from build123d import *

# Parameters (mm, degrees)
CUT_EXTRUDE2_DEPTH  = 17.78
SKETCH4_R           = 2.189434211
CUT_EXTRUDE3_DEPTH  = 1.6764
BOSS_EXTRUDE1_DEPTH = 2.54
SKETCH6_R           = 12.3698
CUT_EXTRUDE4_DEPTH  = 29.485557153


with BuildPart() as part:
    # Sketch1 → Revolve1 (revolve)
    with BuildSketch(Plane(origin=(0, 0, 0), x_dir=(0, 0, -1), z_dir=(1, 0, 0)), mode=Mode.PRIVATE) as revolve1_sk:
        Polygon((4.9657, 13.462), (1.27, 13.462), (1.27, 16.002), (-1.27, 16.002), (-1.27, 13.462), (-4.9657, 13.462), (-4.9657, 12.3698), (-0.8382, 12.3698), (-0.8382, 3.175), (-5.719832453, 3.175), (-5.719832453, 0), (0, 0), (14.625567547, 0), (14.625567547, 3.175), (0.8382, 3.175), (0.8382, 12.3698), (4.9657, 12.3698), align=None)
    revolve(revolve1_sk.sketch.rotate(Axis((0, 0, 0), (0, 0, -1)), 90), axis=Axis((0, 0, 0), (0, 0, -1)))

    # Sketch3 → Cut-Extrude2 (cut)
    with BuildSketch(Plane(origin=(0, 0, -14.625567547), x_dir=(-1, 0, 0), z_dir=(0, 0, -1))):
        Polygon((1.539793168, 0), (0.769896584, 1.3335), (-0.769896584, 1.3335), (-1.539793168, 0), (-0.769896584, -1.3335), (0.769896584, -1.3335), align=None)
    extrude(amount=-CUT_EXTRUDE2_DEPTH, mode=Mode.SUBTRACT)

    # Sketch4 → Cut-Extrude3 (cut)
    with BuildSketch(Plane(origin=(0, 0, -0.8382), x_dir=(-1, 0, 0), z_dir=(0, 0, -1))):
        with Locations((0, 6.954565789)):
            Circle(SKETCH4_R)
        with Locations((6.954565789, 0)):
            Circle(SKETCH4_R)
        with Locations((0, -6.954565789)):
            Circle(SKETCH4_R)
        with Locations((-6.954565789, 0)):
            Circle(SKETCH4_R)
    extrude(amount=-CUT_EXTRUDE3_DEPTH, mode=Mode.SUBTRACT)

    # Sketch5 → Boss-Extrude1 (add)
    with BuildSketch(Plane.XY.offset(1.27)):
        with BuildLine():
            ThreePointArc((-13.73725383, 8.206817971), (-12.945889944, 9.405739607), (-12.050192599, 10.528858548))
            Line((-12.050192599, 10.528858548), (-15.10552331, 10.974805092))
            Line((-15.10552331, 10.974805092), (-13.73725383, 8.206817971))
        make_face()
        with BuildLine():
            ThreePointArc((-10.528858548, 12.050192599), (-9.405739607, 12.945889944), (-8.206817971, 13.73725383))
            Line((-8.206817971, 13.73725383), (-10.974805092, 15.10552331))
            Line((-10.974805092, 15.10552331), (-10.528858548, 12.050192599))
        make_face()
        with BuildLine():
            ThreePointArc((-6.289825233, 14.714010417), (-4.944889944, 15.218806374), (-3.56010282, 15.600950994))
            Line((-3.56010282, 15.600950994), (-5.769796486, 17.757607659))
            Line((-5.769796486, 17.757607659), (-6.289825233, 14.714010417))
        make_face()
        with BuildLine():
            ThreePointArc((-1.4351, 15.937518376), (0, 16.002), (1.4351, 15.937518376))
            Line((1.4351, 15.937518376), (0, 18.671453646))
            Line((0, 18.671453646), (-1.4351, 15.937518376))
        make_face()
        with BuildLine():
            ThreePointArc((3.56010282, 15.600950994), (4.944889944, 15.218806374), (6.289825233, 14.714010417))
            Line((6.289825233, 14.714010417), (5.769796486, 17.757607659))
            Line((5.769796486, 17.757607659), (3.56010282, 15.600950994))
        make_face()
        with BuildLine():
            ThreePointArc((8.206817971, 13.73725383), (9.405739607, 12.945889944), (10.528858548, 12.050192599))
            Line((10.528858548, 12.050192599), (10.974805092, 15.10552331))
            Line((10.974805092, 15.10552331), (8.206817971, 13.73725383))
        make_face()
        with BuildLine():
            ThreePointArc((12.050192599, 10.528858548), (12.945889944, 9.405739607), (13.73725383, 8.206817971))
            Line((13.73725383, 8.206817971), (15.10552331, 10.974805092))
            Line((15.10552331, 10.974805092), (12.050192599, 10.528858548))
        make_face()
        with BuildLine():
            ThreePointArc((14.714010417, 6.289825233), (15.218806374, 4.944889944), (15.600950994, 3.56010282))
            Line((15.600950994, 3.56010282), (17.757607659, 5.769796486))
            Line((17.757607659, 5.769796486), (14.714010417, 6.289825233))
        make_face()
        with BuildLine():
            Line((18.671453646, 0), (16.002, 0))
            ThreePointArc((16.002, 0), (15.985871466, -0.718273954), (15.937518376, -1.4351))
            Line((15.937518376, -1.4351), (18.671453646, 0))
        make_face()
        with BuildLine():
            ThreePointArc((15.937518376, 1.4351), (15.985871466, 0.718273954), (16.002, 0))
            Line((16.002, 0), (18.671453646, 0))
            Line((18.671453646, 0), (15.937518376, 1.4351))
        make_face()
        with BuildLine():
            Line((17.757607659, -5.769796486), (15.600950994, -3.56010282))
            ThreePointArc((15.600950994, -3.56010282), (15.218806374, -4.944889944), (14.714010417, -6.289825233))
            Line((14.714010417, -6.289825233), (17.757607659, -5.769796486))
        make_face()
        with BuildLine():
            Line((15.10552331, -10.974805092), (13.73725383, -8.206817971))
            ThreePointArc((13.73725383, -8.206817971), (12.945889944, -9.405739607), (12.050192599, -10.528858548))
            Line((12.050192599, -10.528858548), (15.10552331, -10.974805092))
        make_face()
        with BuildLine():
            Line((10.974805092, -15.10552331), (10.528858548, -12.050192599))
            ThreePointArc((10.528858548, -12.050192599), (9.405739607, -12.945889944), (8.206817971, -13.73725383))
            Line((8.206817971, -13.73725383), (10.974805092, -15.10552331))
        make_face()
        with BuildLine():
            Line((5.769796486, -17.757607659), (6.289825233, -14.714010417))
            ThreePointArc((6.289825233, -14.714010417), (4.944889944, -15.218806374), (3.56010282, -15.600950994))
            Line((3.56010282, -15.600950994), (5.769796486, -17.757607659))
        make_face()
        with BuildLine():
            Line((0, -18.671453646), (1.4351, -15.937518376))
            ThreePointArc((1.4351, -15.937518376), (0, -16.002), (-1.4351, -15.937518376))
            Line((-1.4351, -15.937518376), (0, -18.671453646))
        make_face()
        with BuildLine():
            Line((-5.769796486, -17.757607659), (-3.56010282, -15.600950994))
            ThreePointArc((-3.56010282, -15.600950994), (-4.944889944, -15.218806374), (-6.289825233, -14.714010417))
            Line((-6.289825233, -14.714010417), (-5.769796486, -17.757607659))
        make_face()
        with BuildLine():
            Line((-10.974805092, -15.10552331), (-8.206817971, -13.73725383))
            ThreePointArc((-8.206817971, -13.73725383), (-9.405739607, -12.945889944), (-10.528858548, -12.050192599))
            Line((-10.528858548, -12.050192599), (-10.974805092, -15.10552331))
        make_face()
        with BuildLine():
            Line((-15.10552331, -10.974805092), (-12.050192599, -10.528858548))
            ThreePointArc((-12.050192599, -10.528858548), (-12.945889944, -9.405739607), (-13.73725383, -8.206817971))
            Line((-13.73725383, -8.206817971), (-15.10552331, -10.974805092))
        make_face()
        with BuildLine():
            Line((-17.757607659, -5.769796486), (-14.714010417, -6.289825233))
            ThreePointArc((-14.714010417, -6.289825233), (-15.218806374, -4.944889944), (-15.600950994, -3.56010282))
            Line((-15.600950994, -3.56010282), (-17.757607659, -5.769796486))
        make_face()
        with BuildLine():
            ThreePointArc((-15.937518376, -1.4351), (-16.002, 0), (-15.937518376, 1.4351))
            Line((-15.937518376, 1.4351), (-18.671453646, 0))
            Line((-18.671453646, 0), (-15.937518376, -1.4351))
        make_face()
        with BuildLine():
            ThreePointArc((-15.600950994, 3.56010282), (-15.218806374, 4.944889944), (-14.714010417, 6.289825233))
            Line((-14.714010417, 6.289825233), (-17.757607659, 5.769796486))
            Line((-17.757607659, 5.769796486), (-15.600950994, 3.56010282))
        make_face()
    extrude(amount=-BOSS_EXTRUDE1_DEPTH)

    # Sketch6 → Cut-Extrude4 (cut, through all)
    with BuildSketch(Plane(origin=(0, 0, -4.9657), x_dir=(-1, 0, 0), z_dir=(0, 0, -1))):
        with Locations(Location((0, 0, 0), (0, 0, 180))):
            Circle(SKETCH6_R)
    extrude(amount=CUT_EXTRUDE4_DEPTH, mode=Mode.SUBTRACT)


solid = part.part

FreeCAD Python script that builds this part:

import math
import FreeCAD as App
import Part
import Sketcher

V = App.Vector
Q = App.Units.Quantity


def add_polygon(sketch, points):
    """Adds a closed chain of lines whose ends are joined by coincident constraints."""
    first, n = sketch.GeometryCount, len(points)
    for a, b in zip(points, points[1:] + points[:1]):
        sketch.addGeometry(Part.LineSegment(App.Vector(*a, 0), App.Vector(*b, 0)), False)
    for i in range(n):
        sketch.addConstraint(Sketcher.Constraint("Coincident", first + i, 2, first + (i + 1) % n, 1))

doc = App.newDocument("Part")
body = doc.addObject("PartDesign::Body", "Body")

sketch1 = body.newObject("Sketcher::SketchObject", "Sketch")
sketch1.AttachmentSupport = (doc.getObject("YZ_Plane"), [""])
sketch1.MapMode = "FlatFace"
add_polygon(sketch1, [(13.5, -5), (13.5, -1.3), (16, -1.3), (16, 1.3), (13.5, 1.3), (13.5, 5), (12.4, 5), (12.4, 0.8), (3.2, 0.8), (3.2, 5.7), (0, 5.7), (0, -14.6), (3.2, -14.6), (3.2, -0.8), (12.4, -0.8), (12.4, -5)])
sketch1.addConstraint([
    Sketcher.Constraint("Vertical", 0),
    Sketcher.Constraint("Horizontal", 1),
    Sketcher.Constraint("Vertical", 2),
    Sketcher.Constraint("Horizontal", 3),
    Sketcher.Constraint("Vertical", 4),
    Sketcher.Constraint("Horizontal", 5),
    Sketcher.Constraint("Vertical", 6),
    Sketcher.Constraint("Horizontal", 7),
    Sketcher.Constraint("Vertical", 8),
    Sketcher.Constraint("Horizontal", 9),
    Sketcher.Constraint("Vertical", 10),
    Sketcher.Constraint("Horizontal", 11),
    Sketcher.Constraint("Vertical", 12),
    Sketcher.Constraint("Horizontal", 13),
    Sketcher.Constraint("Vertical", 14),
    Sketcher.Constraint("Horizontal", 15),
    Sketcher.Constraint("Symmetric", 0, 2, 3, 2, -1),
    Sketcher.Constraint("Symmetric", 7, 2, 12, 2, -1),
    Sketcher.Constraint("Symmetric", 5, 2, 14, 2, -1),
    Sketcher.Constraint("PointOnObject", 9, 2, -2),
    Sketcher.Constraint("Equal", 3, 2),
    Sketcher.Constraint("DistanceX", 1, 1, 1, 2, Q("0.1 in")),
    Sketcher.Constraint("DistanceX", 5, 2, 5, 1, Q("0.043 in")),
    Sketcher.Constraint("DistanceX", 7, 2, 7, 1, Q("0.362 in")),
    Sketcher.Constraint("DistanceX", 9, 2, 9, 1, Q("0.125 in")),
    Sketcher.Constraint("DistanceY", 10, 2, 10, 1, Q("0.801 in")),
    Sketcher.Constraint("DistanceY", 0, 1, 0, 2, Q("0.1455 in")),
    Sketcher.Constraint("DistanceY", 6, 2, 6, 1, Q("0.1625 in")),
    Sketcher.Constraint("DistanceY", 8, 1, 8, 2, Q("4.881632 mm")),
])
revolution = body.newObject("PartDesign::Revolution", "Revolution")
revolution.Profile = sketch1
revolution.ReferenceAxis = (sketch1, ["V_Axis"])
revolution.Angle = 360

sketch2 = body.newObject("Sketcher::SketchObject", "Sketch001")
sketch2.AttachmentSupport = (doc.getObject("XY_Plane"), [""])
sketch2.MapMode = "FlatFace"
sketch2.AttachmentOffset = App.Placement(V(0, 0, -14.625568), App.Rotation())
add_polygon(sketch2, [(-1.5, 0), (-0.8, 1.3), (0.8, 1.3), (1.5, 0), (0.8, -1.3), (-0.8, -1.3)])
sketch2.addConstraint([
    Sketcher.Constraint("Horizontal", 1),
    Sketcher.Constraint("Horizontal", 4),
    Sketcher.Constraint("Symmetric", 0, 2, 3, 2, -1, 1),
    Sketcher.Constraint("Symmetric", 2, 2, 5, 2, -1, 1),
    Sketcher.Constraint("PointOnObject", 2, 2, -1),
    Sketcher.Constraint("Parallel", 2, 5),
    Sketcher.Constraint("Vertical", 1, 2, 3, 2),
    Sketcher.Constraint("Angle", 0, Q("60 deg")),
    Sketcher.Constraint("DistanceY", 3, 2, 1, 2, Q("0.105 in")),
    Sketcher.Constraint("DistanceX", 1, 1, 1, 2, Q("1.539793 mm")),
])
pocket1 = body.newObject("PartDesign::Pocket", "Pocket")
pocket1.Profile = sketch2
pocket1.Length = Q("0.7 in")
pocket1.Reversed = True

sketch3 = body.newObject("Sketcher::SketchObject", "Sketch002")
sketch3.AttachmentSupport = (doc.getObject("XY_Plane"), [""])
sketch3.MapMode = "FlatFace"
sketch3.AttachmentOffset = App.Placement(V(0, 0, -0.033 * 25.4), App.Rotation())
sketch3.addGeometry([
    Part.Circle(V(0, 7, 0), V(0, 0, 1), 2.2),
    Part.Circle(V(-7, 0, 0), V(0, 0, 1), 2.2),
    Part.Circle(V(0, -7, 0), V(0, 0, 1), 2.2),
    Part.Circle(V(7, 0, 0), V(0, 0, 1), 2.2),
], False)
sketch3.addConstraint([
    Sketcher.Constraint("Equal", 0, 1),
    Sketcher.Constraint("Equal", 1, 2),
    Sketcher.Constraint("Equal", 2, 3),
    Sketcher.Constraint("Symmetric", 0, 3, 2, 3, -1, 1),
    Sketcher.Constraint("Symmetric", 1, 3, 3, 3, -1, 1),
    Sketcher.Constraint("PointOnObject", 0, 3, -2),
    Sketcher.Constraint("PointOnObject", 1, 3, -1),
    Sketcher.Constraint("Diameter", 0, Q("4.378868 mm")),
    Sketcher.Constraint("DistanceY", 2, 3, 0, 3, Q("13.909132 mm")),
    Sketcher.Constraint("DistanceX", 1, 3, 3, 3, Q("13.909132 mm")),
])
pocket2 = body.newObject("PartDesign::Pocket", "Pocket001")
pocket2.Profile = sketch3
pocket2.Length = Q("0.066 in")
pocket2.Reversed = True

sketch4 = body.newObject("Sketcher::SketchObject", "Sketch003")
sketch4.AttachmentSupport = (doc.getObject("XY_Plane"), [""])
sketch4.MapMode = "FlatFace"
sketch4.AttachmentOffset = App.Placement(V(0, 0, 0.05 * 25.4), App.Rotation())
sketch4.addGeometry([
    Part.ArcOfCircle(Part.Circle(V(0, 0, 0), V(0, 0, 1), 16), math.radians(138.85), math.radians(149.15)),
    Part.LineSegment(V(-12.1, 10.5, 0), V(-15.1, 11, 0)),
    Part.LineSegment(V(-15.1, 11, 0), V(-13.7, 8.2, 0)),
    Part.ArcOfCircle(Part.Circle(V(0, 0, 0), V(0, 0, 1), 16), math.radians(120.85), math.radians(131.15)),
    Part.LineSegment(V(-8.2, 13.7, 0), V(-11, 15.1, 0)),
    Part.LineSegment(V(-11, 15.1, 0), V(-10.5, 12.1, 0)),
    Part.ArcOfCircle(Part.Circle(V(0, 0, 0), V(0, 0, 1), 16), math.radians(102.85), math.radians(113.15)),
    Part.LineSegment(V(-3.6, 15.6, 0), V(-5.8, 17.8, 0)),
    Part.LineSegment(V(-5.8, 17.8, 0), V(-6.3, 14.7, 0)),
    Part.ArcOfCircle(Part.Circle(V(0, 0, 0), V(0, 0, 1), 16), math.radians(84.85), math.radians(95.15)),
    Part.LineSegment(V(1.4, 15.9, 0), V(0, 18.7, 0)),
    Part.LineSegment(V(0, 18.7, 0), V(-1.4, 15.9, 0)),
    Part.ArcOfCircle(Part.Circle(V(0, 0, 0), V(0, 0, 1), 16), math.radians(66.85), math.radians(77.15)),
    Part.LineSegment(V(6.3, 14.7, 0), V(5.8, 17.8, 0)),
    Part.LineSegment(V(5.8, 17.8, 0), V(3.6, 15.6, 0)),
    Part.ArcOfCircle(Part.Circle(V(0, 0, 0), V(0, 0, 1), 16), math.radians(48.85), math.radians(59.15)),
    Part.LineSegment(V(10.5, 12.1, 0), V(11, 15.1, 0)),
    Part.LineSegment(V(11, 15.1, 0), V(8.2, 13.7, 0)),
    Part.ArcOfCircle(Part.Circle(V(0, 0, 0), V(0, 0, 1), 16), math.radians(30.85), math.radians(41.15)),
    Part.LineSegment(V(13.7, 8.2, 0), V(15.1, 11, 0)),
    Part.LineSegment(V(15.1, 11, 0), V(12.1, 10.5, 0)),
    Part.ArcOfCircle(Part.Circle(V(0, 0, 0), V(0, 0, 1), 16), math.radians(12.85), math.radians(23.15)),
    Part.LineSegment(V(15.6, 3.6, 0), V(17.8, 5.8, 0)),
    Part.LineSegment(V(17.8, 5.8, 0), V(14.7, 6.3, 0)),
    Part.ArcOfCircle(Part.Circle(V(0, 0, 0), V(0, 0, 1), 16), math.radians(-5.15), math.radians(0)),
    Part.LineSegment(V(15.9, -1.4, 0), V(18.7, 0, 0)),
    Part.LineSegment(V(18.7, 0, 0), V(15.9, 1.4, 0)),
    Part.ArcOfCircle(Part.Circle(V(0, 0, 0), V(0, 0, 1), 16), math.radians(0), math.radians(5.15)),
    Part.LineSegment(V(17.8, -5.8, 0), V(15.6, -3.6, 0)),
    Part.ArcOfCircle(Part.Circle(V(0, 0, 0), V(0, 0, 1), 16), math.radians(-23.15), math.radians(-12.85)),
    Part.LineSegment(V(14.7, -6.3, 0), V(17.8, -5.8, 0)),
    Part.LineSegment(V(15.1, -11, 0), V(13.7, -8.2, 0)),
    Part.ArcOfCircle(Part.Circle(V(0, 0, 0), V(0, 0, 1), 16), math.radians(-41.15), math.radians(-30.85)),
    Part.LineSegment(V(12.1, -10.5, 0), V(15.1, -11, 0)),
    Part.LineSegment(V(11, -15.1, 0), V(10.5, -12.1, 0)),
    Part.ArcOfCircle(Part.Circle(V(0, 0, 0), V(0, 0, 1), 16), math.radians(-59.15), math.radians(-48.85)),
    Part.LineSegment(V(8.2, -13.7, 0), V(11, -15.1, 0)),
    Part.LineSegment(V(5.8, -17.8, 0), V(6.3, -14.7, 0)),
    Part.ArcOfCircle(Part.Circle(V(0, 0, 0), V(0, 0, 1), 16), math.radians(-77.15), math.radians(-66.85)),
    Part.LineSegment(V(3.6, -15.6, 0), V(5.8, -17.8, 0)),
    Part.LineSegment(V(0, -18.7, 0), V(1.4, -15.9, 0)),
    Part.ArcOfCircle(Part.Circle(V(0, 0, 0), V(0, 0, 1), 16), math.radians(-95.15), math.radians(-84.85)),
    Part.LineSegment(V(-1.4, -15.9, 0), V(0, -18.7, 0)),
    Part.LineSegment(V(-5.8, -17.8, 0), V(-3.6, -15.6, 0)),
    Part.ArcOfCircle(Part.Circle(V(0, 0, 0), V(0, 0, 1), 16), math.radians(-113.15), math.radians(-102.85)),
    Part.LineSegment(V(-6.3, -14.7, 0), V(-5.8, -17.8, 0)),
    Part.LineSegment(V(-11, -15.1, 0), V(-8.2, -13.7, 0)),
    Part.ArcOfCircle(Part.Circle(V(0, 0, 0), V(0, 0, 1), 16), math.radians(-131.15), math.radians(-120.85)),
    Part.LineSegment(V(-10.5, -12.1, 0), V(-11, -15.1, 0)),
    Part.LineSegment(V(-15.1, -11, 0), V(-12.1, -10.5, 0)),
    Part.ArcOfCircle(Part.Circle(V(0, 0, 0), V(0, 0, 1), 16), math.radians(-149.15), math.radians(-138.85)),
    Part.LineSegment(V(-13.7, -8.2, 0), V(-15.1, -11, 0)),
    Part.LineSegment(V(-17.8, -5.8, 0), V(-14.7, -6.3, 0)),
    Part.ArcOfCircle(Part.Circle(V(0, 0, 0), V(0, 0, 1), 16), math.radians(-167.15), math.radians(-156.85)),
    Part.LineSegment(V(-15.6, -3.6, 0), V(-17.8, -5.8, 0)),
    Part.ArcOfCircle(Part.Circle(V(0, 0, 0), V(0, 0, 1), 16), math.radians(174.85), math.radians(185.15)),
    Part.LineSegment(V(-15.9, 1.4, 0), V(-18.7, 0, 0)),
    Part.LineSegment(V(-18.7, 0, 0), V(-15.9, -1.4, 0)),
    Part.ArcOfCircle(Part.Circle(V(0, 0, 0), V(0, 0, 1), 16), math.radians(156.85), math.radians(167.15)),
    Part.LineSegment(V(-14.7, 6.3, 0), V(-17.8, 5.8, 0)),
    Part.LineSegment(V(-17.8, 5.8, 0), V(-15.6, 3.6, 0)),
], False)
sketch4.addConstraint([
    Sketcher.Constraint("Coincident", 0, 1, 1, 1),
    Sketcher.Constraint("Coincident", 1, 2, 2, 1),
    Sketcher.Constraint("Coincident", 2, 2, 0, 2),
    Sketcher.Constraint("Coincident", 3, 1, 4, 1),
    Sketcher.Constraint("Coincident", 4, 2, 5, 1),
    Sketcher.Constraint("Coincident", 5, 2, 3, 2),
    Sketcher.Constraint("Coincident", 6, 1, 7, 1),
    Sketcher.Constraint("Coincident", 7, 2, 8, 1),
    Sketcher.Constraint("Coincident", 8, 2, 6, 2),
    Sketcher.Constraint("Coincident", 9, 1, 10, 1),
    Sketcher.Constraint("Coincident", 10, 2, 11, 1),
    Sketcher.Constraint("Coincident", 11, 2, 9, 2),
    Sketcher.Constraint("Coincident", 12, 1, 13, 1),
    Sketcher.Constraint("Coincident", 13, 2, 14, 1),
    Sketcher.Constraint("Coincident", 14, 2, 12, 2),
    Sketcher.Constraint("Coincident", 15, 1, 16, 1),
    Sketcher.Constraint("Coincident", 16, 2, 17, 1),
    Sketcher.Constraint("Coincident", 17, 2, 15, 2),
    Sketcher.Constraint("Coincident", 18, 1, 19, 1),
    Sketcher.Constraint("Coincident", 19, 2, 20, 1),
    Sketcher.Constraint("Coincident", 20, 2, 18, 2),
    Sketcher.Constraint("Coincident", 21, 1, 22, 1),
    Sketcher.Constraint("Coincident", 22, 2, 23, 1),
    Sketcher.Constraint("Coincident", 23, 2, 21, 2),
    Sketcher.Constraint("Coincident", 24, 1, 25, 1),
    Sketcher.Constraint("Coincident", 25, 2, 26, 1),
    Sketcher.Constraint("Coincident", 26, 2, 27, 2),
    Sketcher.Constraint("Tangent", 27, 1, 24, 2),
    Sketcher.Constraint("Coincident", 28, 2, 29, 2),
    Sketcher.Constraint("Coincident", 29, 1, 30, 1),
    Sketcher.Constraint("Coincident", 30, 2, 28, 1),
    Sketcher.Constraint("Coincident", 31, 2, 32, 2),
    Sketcher.Constraint("Coincident", 32, 1, 33, 1),
    Sketcher.Constraint("Coincident", 33, 2, 31, 1),
    Sketcher.Constraint("Coincident", 34, 2, 35, 2),
    Sketcher.Constraint("Coincident", 35, 1, 36, 1),
    Sketcher.Constraint("Coincident", 36, 2, 34, 1),
    Sketcher.Constraint("Coincident", 37, 2, 38, 2),
    Sketcher.Constraint("Coincident", 38, 1, 39, 1),
    Sketcher.Constraint("Coincident", 39, 2, 37, 1),
    Sketcher.Constraint("Coincident", 40, 2, 41, 2),
    Sketcher.Constraint("Coincident", 41, 1, 42, 1),
    Sketcher.Constraint("Coincident", 42, 2, 40, 1),
    Sketcher.Constraint("Coincident", 43, 2, 44, 2),
    Sketcher.Constraint("Coincident", 44, 1, 45, 1),
    Sketcher.Constraint("Coincident", 45, 2, 43, 1),
    Sketcher.Constraint("Coincident", 46, 2, 47, 2),
    Sketcher.Constraint("Coincident", 47, 1, 48, 1),
    Sketcher.Constraint("Coincident", 48, 2, 46, 1),
    Sketcher.Constraint("Coincident", 49, 2, 50, 2),
    Sketcher.Constraint("Coincident", 50, 1, 51, 1),
    Sketcher.Constraint("Coincident", 51, 2, 49, 1),
    Sketcher.Constraint("Coincident", 52, 2, 53, 2),
    Sketcher.Constraint("Coincident", 53, 1, 54, 1),
    Sketcher.Constraint("Coincident", 54, 2, 52, 1),
    Sketcher.Constraint("Coincident", 55, 1, 56, 1),
    Sketcher.Constraint("Coincident", 56, 2, 57, 1),
    Sketcher.Constraint("Coincident", 57, 2, 55, 2),
    Sketcher.Constraint("Coincident", 58, 1, 59, 1),
    Sketcher.Constraint("Coincident", 59, 2, 60, 1),
    Sketcher.Constraint("Coincident", 60, 2, 58, 2),
    Sketcher.Constraint("Coincident", 0, 3, -1, 1),
    Sketcher.Constraint("Coincident", 3, 3, -1, 1),
    Sketcher.Constraint("Coincident", 6, 3, -1, 1),
    Sketcher.Constraint("Coincident", 9, 3, -1, 1),
    Sketcher.Constraint("Coincident", 12, 3, -1, 1),
    Sketcher.Constraint("Coincident", 15, 3, -1, 1),
    Sketcher.Constraint("Coincident", 18, 3, -1, 1),
    Sketcher.Constraint("Coincident", 21, 3, -1, 1),
    Sketcher.Constraint("Coincident", 24, 3, -1, 1),
    Sketcher.Constraint("Coincident", 29, 3, -1, 1),
    Sketcher.Constraint("Coincident", 32, 3, -1, 1),
    Sketcher.Constraint("Coincident", 35, 3, -1, 1),
    Sketcher.Constraint("Coincident", 38, 3, -1, 1),
    Sketcher.Constraint("Coincident", 41, 3, -1, 1),
    Sketcher.Constraint("Coincident", 44, 3, -1, 1),
    Sketcher.Constraint("Coincident", 47, 3, -1, 1),
    Sketcher.Constraint("Coincident", 50, 3, -1, 1),
    Sketcher.Constraint("Coincident", 53, 3, -1, 1),
    Sketcher.Constraint("Coincident", 55, 3, -1, 1),
    Sketcher.Constraint("Coincident", 58, 3, -1, 1),
    Sketcher.Constraint("Equal", 0, 3),
    Sketcher.Constraint("Equal", 3, 6),
    Sketcher.Constraint("Equal", 6, 9),
    Sketcher.Constraint("Equal", 9, 12),
    Sketcher.Constraint("Equal", 12, 15),
    Sketcher.Constraint("Equal", 15, 18),
    Sketcher.Constraint("Equal", 18, 21),
    Sketcher.Constraint("Equal", 21, 24),
    Sketcher.Constraint("Equal", 24, 27),
    Sketcher.Constraint("Equal", 27, 29),
    Sketcher.Constraint("Equal", 29, 32),
    Sketcher.Constraint("Equal", 32, 35),
    Sketcher.Constraint("Equal", 35, 38),
    Sketcher.Constraint("Equal", 38, 41),
    Sketcher.Constraint("Equal", 41, 44),
    Sketcher.Constraint("Equal", 44, 47),
    Sketcher.Constraint("Equal", 47, 50),
    Sketcher.Constraint("Equal", 50, 53),
    Sketcher.Constraint("Equal", 53, 55),
    Sketcher.Constraint("Equal", 55, 58),
    Sketcher.Constraint("Symmetric", 1, 2, 33, 2, -1, 1),
    Sketcher.Constraint("Symmetric", 4, 2, 36, 2, -1, 1),
    Sketcher.Constraint("Symmetric", 7, 2, 39, 2, -1, 1),
    Sketcher.Constraint("Symmetric", 10, 2, 42, 2, -1, 1),
    Sketcher.Constraint("Symmetric", 13, 2, 45, 2, -1, 1),
    Sketcher.Constraint("Symmetric", 16, 2, 48, 2, -1, 1),
    Sketcher.Constraint("Symmetric", 19, 2, 51, 2, -1, 1),
    Sketcher.Constraint("Symmetric", 22, 2, 54, 2, -1, 1),
    Sketcher.Constraint("Symmetric", 25, 2, 56, 2, -1, 1),
    Sketcher.Constraint("Symmetric", 30, 2, 59, 2, -1, 1),
    Sketcher.Constraint("Symmetric", 7, 2, 13, 2, -2),
    Sketcher.Constraint("Symmetric", 4, 2, 16, 2, -2),
    Sketcher.Constraint("Symmetric", 1, 2, 19, 2, -2),
    Sketcher.Constraint("Symmetric", 30, 2, 54, 2, -2),
    Sketcher.Constraint("PointOnObject", 10, 2, -2),
    Sketcher.Constraint("PointOnObject", 25, 2, -1),
    Sketcher.Constraint("PointOnObject", 27, 1, -1),
    Sketcher.Constraint("Perpendicular", 1, 16),
    Sketcher.Constraint("Perpendicular", 2, 17),
    Sketcher.Constraint("Perpendicular", 4, 19),
    Sketcher.Constraint("Perpendicular", 5, 20),
    Sketcher.Constraint("Perpendicular", 7, 22),
    Sketcher.Constraint("Perpendicular", 8, 23),
    Sketcher.Constraint("Perpendicular", 10, 25),
    Sketcher.Constraint("Perpendicular", 11, 26),
    Sketcher.Constraint("Perpendicular", 14, 28),
    Sketcher.Constraint("Perpendicular", 13, 30),
    Sketcher.Constraint("Perpendicular", 17, 31),
    Sketcher.Constraint("Perpendicular", 16, 33),
    Sketcher.Constraint("Perpendicular", 20, 34),
    Sketcher.Constraint("Perpendicular", 19, 36),
    Sketcher.Constraint("Perpendicular", 23, 37),
    Sketcher.Constraint("Perpendicular", 22, 39),
    Sketcher.Constraint("Perpendicular", 26, 40),
    Sketcher.Constraint("Perpendicular", 25, 42),
    Sketcher.Constraint("Perpendicular", 28, 43),
    Sketcher.Constraint("Perpendicular", 30, 45),
    Sketcher.Constraint("Perpendicular", 31, 46),
    Sketcher.Constraint("Perpendicular", 33, 48),
    Sketcher.Constraint("Perpendicular", 34, 49),
    Sketcher.Constraint("Perpendicular", 36, 51),
    Sketcher.Constraint("Perpendicular", 37, 52),
    Sketcher.Constraint("Perpendicular", 39, 54),
    Sketcher.Constraint("Perpendicular", 42, 56),
    Sketcher.Constraint("Perpendicular", 40, 57),
    Sketcher.Constraint("Perpendicular", 45, 59),
    Sketcher.Constraint("Perpendicular", 43, 60),
    Sketcher.Constraint("Horizontal", 9, 1, 11, 2),
    Sketcher.Constraint("Horizontal", 8, 2, 12, 1),
    Sketcher.Constraint("Horizontal", 6, 1, 14, 2),
    Sketcher.Constraint("Horizontal", 5, 2, 15, 1),
    Sketcher.Constraint("Horizontal", 3, 1, 17, 2),
    Sketcher.Constraint("Equal", 1, 2),
    Sketcher.Constraint("Equal", 2, 4),
    Sketcher.Constraint("Equal", 4, 5),
    Sketcher.Constraint("Equal", 5, 7),
    Sketcher.Constraint("Equal", 7, 8),
    Sketcher.Constraint("Equal", 8, 10),
    Sketcher.Constraint("Equal", 20, 22),
    Sketcher.Constraint("Equal", 22, 23),
    Sketcher.Constraint("Equal", 23, 25),
    Sketcher.Constraint("Radius", 0, Q("0.63 in")),
    Sketcher.Constraint("DistanceX", -1, 1, 9, 1, Q("0.0565 in")),
    Sketcher.Constraint("DistanceY", -1, 1, 0, 1, Q("10.528859 mm")),
    Sketcher.Constraint("DistanceY", -1, 1, 6, 1, Q("15.600951 mm")),
    Sketcher.Constraint("DistanceY", -1, 1, 8, 2, Q("14.71401 mm")),
    Sketcher.Constraint("Distance", 1, Q("3.087704 mm")),
    Sketcher.Constraint("DistanceX", 1, 2, -1, 1, Q("15.105523 mm")),
])
pad1 = body.newObject("PartDesign::Pad", "Pad")
pad1.Profile = sketch4
pad1.Length = Q("0.1 in")
pad1.Reversed = True

sketch5 = body.newObject("Sketcher::SketchObject", "Sketch004")
sketch5.AttachmentSupport = (doc.getObject("XY_Plane"), [""])
sketch5.MapMode = "FlatFace"
sketch5.AttachmentOffset = App.Placement(V(0, 0, -0.1955 * 25.4), App.Rotation())
sketch5.addGeometry(Part.Circle(V(0, 0, 0), V(0, 0, 1), 12), False)
sketch5.addConstraint([
    Sketcher.Constraint("Coincident", 0, 3, -1, 1),
    Sketcher.Constraint("Diameter", 0, Q("0.974 in")),
])
pocket3 = body.newObject("PartDesign::Pocket", "Pocket002")
pocket3.Profile = sketch5
pocket3.Type = "ThroughAll"

doc.recompute()
